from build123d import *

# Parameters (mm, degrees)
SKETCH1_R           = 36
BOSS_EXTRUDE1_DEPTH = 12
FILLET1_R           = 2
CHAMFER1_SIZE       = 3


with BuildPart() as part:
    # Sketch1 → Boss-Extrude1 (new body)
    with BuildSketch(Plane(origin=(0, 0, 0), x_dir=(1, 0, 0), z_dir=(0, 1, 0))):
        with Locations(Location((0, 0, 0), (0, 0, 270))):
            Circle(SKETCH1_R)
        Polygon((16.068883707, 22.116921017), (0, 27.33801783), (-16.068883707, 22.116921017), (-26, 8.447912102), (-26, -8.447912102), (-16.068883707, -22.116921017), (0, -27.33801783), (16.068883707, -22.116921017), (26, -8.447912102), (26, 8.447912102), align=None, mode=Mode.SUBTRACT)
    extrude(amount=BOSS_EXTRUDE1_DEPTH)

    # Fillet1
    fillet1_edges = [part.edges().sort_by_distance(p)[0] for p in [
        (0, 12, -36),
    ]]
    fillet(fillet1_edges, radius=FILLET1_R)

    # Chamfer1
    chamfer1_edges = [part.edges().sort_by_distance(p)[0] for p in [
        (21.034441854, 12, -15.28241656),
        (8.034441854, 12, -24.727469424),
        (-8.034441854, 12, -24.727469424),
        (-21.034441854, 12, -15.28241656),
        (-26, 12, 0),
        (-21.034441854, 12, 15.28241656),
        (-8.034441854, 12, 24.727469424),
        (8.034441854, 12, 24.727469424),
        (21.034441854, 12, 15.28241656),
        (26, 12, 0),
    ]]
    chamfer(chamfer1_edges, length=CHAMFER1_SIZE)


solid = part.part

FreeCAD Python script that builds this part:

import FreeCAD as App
import Part
import Sketcher

V = App.Vector
Q = App.Units.Quantity


def edges_at(feature, points):
    """Names of the edges that pass closest to the given points."""
    edges = feature.Shape.Edges
    near = lambda p: min(range(len(edges)), key=lambda i: edges[i].distToShape(Part.Vertex(*p))[0])
    return sorted({f"Edge{near(p) + 1}" for p in points})


def add_polygon(sketch, points):
    """Adds a closed chain of lines whose ends are joined by coincident constraints."""
    first, n = sketch.GeometryCount, len(points)
    for a, b in zip(points, points[1:] + points[:1]):
        sketch.addGeometry(Part.LineSegment(App.Vector(*a, 0), App.Vector(*b, 0)), False)
    for i in range(n):
        sketch.addConstraint(Sketcher.Constraint("Coincident", first + i, 2, first + (i + 1) % n, 1))

doc = App.newDocument("Part")
body = doc.addObject("PartDesign::Body", "Body")

# Sketch on XZ plane
sketch1 = doc.addObject("Sketcher::SketchObject", "Sketch")
body.addObject(sketch1)
sketch1.AttachmentSupport = (doc.XZ_Plane, [""])
sketch1.MapMode = "FlatFace"
sketch1.addGeometry(Part.Circle(V(0, 0, 0), V(0, 0, 1), 36), False)  # 0
add_polygon(sketch1, [(0, -27), (16, -22), (26, -8), (26, 8), (16, 22), (0, 27), (-16, 22), (-26, 8), (-26, -8), (-16, -22)])  # lines 1-10
sketch1.addConstraint([
    Sketcher.Constraint("Vertical", 3),
    Sketcher.Constraint("Vertical", 8),
    Sketcher.Constraint("Coincident", 0, 3, -1, 1),
    Sketcher.Constraint("Symmetric", 1, 2, 6, 2, -1, 1),
    Sketcher.Constraint("Symmetric", 2, 2, 7, 2, -1, 1),
    Sketcher.Constraint("Symmetric", 4, 2, 9, 2, -1, 1),
    Sketcher.Constraint("Symmetric", 5, 2, 10, 2, -1, 1),
    Sketcher.Constraint("Symmetric", 4, 2, 6, 2, -2),
    Sketcher.Constraint("PointOnObject", 5, 2, -2),
    Sketcher.Constraint("Parallel", 4, 9),
    Sketcher.Constraint("Horizontal", 3, 2, 7, 2),
    Sketcher.Constraint("Equal", 1, 2),
    Sketcher.Constraint("Diameter", 0, Q("72 mm")),
    Sketcher.Constraint("Angle", 1, Q("18 deg")),
    Sketcher.Constraint("Angle", 2, Q("54 deg")),
    Sketcher.Constraint("DistanceX", -1, 1, 2, 2, Q("26 mm")),
    Sketcher.Constraint("DistanceY", 3, 1, 3, 2, Q("16.895824 mm")),
])
pad1 = doc.addObject("PartDesign::Pad", "Pad")
body.addObject(pad1)
pad1.Profile = sketch1
pad1.Length = 12
pad1.Reversed = True
doc.recompute()

fillet = doc.addObject("PartDesign::Fillet", "Fillet")
body.addObject(fillet)
fillet.Base = (pad1, edges_at(pad1, [(0, 12, -36)]))
fillet.Radius = 2
doc.recompute()

chamfer = doc.addObject("PartDesign::Chamfer", "Chamfer")
body.addObject(chamfer)
chamfer.Base = (fillet, edges_at(fillet, [
    (21.034, 12, -15.282),
    (8.034, 12, -24.727),
    (-8.034, 12, -24.727),
    (-21.034, 12, -15.282),
    (-26, 12, 0),
    (-21.034, 12, 15.282),
    (-8.034, 12, 24.727),
    (8.034, 12, 24.727),
    (21.034, 12, 15.282),
    (26, 12, 0),
]))
chamfer.Size = 3

doc.recompute()
